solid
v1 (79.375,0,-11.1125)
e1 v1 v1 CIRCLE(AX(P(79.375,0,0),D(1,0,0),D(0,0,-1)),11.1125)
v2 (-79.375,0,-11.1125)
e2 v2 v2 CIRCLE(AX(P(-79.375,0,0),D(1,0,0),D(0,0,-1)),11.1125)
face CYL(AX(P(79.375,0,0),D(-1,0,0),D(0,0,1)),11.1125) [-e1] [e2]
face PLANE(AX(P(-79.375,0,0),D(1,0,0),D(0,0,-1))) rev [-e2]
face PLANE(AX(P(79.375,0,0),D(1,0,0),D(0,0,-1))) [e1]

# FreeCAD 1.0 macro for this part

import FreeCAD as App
import Part
import Sketcher
Q = App.Units.Quantity

doc = App.newDocument("Part")
body = doc.addObject("PartDesign::Body", "Body")

sketch1 = body.newObject("Sketcher::SketchObject", "Sketch")
sketch1.AttachmentSupport = (doc.getObject("YZ_Plane"), [""])
sketch1.MapMode = "FlatFace"
sketch1.addGeometry(Part.Circle(App.Vector(0, 0, 0), App.Vector(0, 0, 1), 11), False)
sketch1.addConstraint(Sketcher.Constraint("Coincident", 0, 3, -1, 1))
sketch1.addConstraint(Sketcher.Constraint("Diameter", 0, Q("0.875 in")))
pad1 = body.newObject("PartDesign::Pad", "Pad")
pad1.Profile = sketch1
pad1.Length = Q("6.25 in")
pad1.Midplane = True

doc.recompute()
